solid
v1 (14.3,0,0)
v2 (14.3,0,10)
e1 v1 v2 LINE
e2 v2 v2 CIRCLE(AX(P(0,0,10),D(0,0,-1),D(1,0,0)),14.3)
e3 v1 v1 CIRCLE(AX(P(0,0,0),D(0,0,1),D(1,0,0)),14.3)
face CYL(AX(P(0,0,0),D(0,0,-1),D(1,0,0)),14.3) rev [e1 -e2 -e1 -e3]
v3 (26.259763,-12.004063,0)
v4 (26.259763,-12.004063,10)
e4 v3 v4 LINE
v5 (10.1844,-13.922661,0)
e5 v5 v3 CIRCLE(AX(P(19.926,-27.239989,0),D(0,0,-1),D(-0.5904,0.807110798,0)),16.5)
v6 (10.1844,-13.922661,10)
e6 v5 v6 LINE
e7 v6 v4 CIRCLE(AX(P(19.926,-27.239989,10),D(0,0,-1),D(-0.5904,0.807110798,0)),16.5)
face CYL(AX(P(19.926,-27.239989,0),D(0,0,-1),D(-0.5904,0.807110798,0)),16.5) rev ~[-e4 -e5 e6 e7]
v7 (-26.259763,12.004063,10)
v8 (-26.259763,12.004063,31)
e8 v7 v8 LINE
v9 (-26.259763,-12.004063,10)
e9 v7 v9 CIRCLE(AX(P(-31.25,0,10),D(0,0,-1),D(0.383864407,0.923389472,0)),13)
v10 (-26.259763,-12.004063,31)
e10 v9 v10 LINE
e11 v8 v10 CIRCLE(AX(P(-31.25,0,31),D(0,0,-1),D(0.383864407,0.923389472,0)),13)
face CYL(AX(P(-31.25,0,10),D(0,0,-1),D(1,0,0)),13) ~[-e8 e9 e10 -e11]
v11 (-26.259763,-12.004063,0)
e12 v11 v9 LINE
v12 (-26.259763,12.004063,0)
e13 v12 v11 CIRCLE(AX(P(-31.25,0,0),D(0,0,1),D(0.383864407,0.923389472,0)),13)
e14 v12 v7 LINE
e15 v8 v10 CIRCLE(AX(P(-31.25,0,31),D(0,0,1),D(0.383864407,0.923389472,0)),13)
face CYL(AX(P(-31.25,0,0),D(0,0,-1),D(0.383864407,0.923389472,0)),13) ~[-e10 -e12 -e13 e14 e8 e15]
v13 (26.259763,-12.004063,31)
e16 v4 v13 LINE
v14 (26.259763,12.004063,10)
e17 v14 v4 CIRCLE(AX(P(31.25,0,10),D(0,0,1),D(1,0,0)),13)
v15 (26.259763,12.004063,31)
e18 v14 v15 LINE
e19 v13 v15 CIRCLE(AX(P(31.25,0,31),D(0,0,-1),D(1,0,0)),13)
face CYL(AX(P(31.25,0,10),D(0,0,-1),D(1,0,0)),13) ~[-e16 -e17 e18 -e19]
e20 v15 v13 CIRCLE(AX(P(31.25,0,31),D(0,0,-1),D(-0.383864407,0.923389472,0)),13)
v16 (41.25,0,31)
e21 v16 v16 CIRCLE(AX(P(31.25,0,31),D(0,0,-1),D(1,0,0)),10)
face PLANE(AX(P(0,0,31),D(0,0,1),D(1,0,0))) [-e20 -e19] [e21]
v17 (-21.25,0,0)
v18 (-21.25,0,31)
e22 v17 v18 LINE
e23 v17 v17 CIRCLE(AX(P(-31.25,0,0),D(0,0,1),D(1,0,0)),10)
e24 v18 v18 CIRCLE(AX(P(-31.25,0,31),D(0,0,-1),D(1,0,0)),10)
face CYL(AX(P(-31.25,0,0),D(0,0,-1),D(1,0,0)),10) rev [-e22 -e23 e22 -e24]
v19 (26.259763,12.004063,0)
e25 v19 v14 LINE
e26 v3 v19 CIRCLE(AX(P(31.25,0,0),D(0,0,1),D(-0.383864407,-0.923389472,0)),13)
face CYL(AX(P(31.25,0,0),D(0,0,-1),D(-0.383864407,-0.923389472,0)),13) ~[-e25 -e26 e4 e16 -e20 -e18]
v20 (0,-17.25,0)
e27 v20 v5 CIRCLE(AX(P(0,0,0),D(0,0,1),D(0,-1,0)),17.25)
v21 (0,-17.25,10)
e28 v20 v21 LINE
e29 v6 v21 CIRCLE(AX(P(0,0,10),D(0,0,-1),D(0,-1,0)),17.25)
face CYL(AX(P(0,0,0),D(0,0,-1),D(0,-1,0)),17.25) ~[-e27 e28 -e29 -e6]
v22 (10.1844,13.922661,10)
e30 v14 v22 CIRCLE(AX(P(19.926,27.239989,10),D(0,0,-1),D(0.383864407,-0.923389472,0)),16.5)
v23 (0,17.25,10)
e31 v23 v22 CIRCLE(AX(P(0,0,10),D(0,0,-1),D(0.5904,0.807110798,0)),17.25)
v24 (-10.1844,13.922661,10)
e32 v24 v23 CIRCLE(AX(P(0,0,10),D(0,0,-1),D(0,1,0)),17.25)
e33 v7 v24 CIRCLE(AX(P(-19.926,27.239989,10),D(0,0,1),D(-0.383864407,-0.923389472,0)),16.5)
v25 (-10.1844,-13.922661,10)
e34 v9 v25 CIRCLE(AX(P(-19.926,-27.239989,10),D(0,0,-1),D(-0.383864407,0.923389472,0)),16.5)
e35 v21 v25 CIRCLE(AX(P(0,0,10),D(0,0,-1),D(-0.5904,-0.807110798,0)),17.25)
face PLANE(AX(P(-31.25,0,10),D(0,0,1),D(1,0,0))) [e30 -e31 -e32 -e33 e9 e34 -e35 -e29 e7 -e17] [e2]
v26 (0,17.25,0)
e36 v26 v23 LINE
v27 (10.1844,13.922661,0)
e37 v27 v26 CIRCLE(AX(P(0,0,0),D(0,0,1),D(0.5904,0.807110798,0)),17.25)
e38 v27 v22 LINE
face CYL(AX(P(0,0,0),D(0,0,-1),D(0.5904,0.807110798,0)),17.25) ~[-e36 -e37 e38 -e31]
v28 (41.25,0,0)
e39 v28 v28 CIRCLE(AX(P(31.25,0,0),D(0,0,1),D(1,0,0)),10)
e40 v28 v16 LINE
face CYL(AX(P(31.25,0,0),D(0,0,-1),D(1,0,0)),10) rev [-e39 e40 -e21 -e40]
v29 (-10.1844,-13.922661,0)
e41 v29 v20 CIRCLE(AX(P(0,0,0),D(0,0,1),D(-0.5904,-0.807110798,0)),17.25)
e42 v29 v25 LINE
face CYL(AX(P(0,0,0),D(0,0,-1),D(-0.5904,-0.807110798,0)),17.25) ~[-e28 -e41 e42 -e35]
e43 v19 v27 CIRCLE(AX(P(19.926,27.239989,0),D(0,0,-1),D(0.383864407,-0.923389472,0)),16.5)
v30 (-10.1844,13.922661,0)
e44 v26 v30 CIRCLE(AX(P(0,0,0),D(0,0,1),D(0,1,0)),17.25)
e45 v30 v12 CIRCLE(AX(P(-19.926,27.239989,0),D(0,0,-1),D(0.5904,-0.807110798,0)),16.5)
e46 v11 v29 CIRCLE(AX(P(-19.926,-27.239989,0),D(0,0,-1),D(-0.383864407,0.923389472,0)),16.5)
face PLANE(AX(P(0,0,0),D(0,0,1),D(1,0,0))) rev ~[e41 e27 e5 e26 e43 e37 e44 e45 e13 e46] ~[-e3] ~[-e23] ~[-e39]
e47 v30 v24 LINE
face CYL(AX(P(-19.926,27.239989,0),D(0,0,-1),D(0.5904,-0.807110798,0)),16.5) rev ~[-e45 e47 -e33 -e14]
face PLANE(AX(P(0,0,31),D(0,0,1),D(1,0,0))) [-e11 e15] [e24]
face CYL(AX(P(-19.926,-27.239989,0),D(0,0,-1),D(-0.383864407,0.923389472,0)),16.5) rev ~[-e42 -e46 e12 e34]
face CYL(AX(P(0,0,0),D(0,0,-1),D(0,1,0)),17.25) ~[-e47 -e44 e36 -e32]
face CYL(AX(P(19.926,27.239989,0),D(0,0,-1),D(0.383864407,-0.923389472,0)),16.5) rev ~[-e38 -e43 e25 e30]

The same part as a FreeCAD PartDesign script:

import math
import FreeCAD as App
import Part
import Sketcher
from FreeCAD import Vector
Q = App.Units.Quantity


def add_polygon(sketch, points):
    """Adds a closed chain of lines whose ends are joined by coincident constraints."""
    first, n = sketch.GeometryCount, len(points)
    for a, b in zip(points, points[1:] + points[:1]):
        sketch.addGeometry(Part.LineSegment(App.Vector(*a, 0), App.Vector(*b, 0)), False)
    for i in range(n):
        sketch.addConstraint(Sketcher.Constraint("Coincident", first + i, 2, first + (i + 1) % n, 1))

doc = App.newDocument("Part")
body = doc.addObject("PartDesign::Body", "Body")

# Sketch on XY plane
sketch1 = body.newObject("Sketcher::SketchObject", "Sketch")
sketch1.AttachmentSupport = (doc.getObject("XY_Plane"), [""])
sketch1.MapMode = "FlatFace"
sketch1.addGeometry([
    Part.ArcOfCircle(Part.Circle(Vector(-20, 27, 0), Vector(0, 0, 1), 16), math.radians(-113), math.radians(-54)),  # 0
    Part.ArcOfCircle(Part.Circle(Vector(-31, 0, 0), Vector(0, 0, 1), 13), math.radians(67), math.radians(293)),  # 1
    Part.ArcOfCircle(Part.Circle(Vector(-20, -27, 0), Vector(0, 0, 1), 16), math.radians(54), math.radians(113)),  # 2
    Part.ArcOfCircle(Part.Circle(Vector(0, 0, 0), Vector(0, 0, 1), 17), math.radians(-126), math.radians(-90)),  # 3
    Part.ArcOfCircle(Part.Circle(Vector(0, 0, 0), Vector(0, 0, 1), 17), math.radians(-90), math.radians(-54)),  # 4
    Part.ArcOfCircle(Part.Circle(Vector(20, -27, 0), Vector(0, 0, 1), 16), math.radians(67), math.radians(126)),  # 5
    Part.ArcOfCircle(Part.Circle(Vector(31, 0, 0), Vector(0, 0, 1), 13), math.radians(-113), math.radians(113)),  # 6
    Part.ArcOfCircle(Part.Circle(Vector(20, 27, 0), Vector(0, 0, 1), 16), math.radians(-126), math.radians(-67)),  # 7
    Part.ArcOfCircle(Part.Circle(Vector(0, 0, 0), Vector(0, 0, 1), 17), math.radians(54), math.radians(90)),  # 8
    Part.ArcOfCircle(Part.Circle(Vector(0, 0, 0), Vector(0, 0, 1), 17), math.radians(90), math.radians(126)),  # 9
], False)
sketch1.addConstraint([
    Sketcher.Constraint("Tangent", 0, 1, 1, 1),
    Sketcher.Constraint("Tangent", 1, 2, 2, 2),
    Sketcher.Constraint("Tangent", 2, 1, 3, 1),
    Sketcher.Constraint("Tangent", 3, 2, 4, 1),
    Sketcher.Constraint("Tangent", 4, 2, 5, 2),
    Sketcher.Constraint("Tangent", 5, 1, 6, 1),
    Sketcher.Constraint("Tangent", 6, 2, 7, 2),
    Sketcher.Constraint("Tangent", 7, 1, 8, 1),
    Sketcher.Constraint("Tangent", 8, 2, 9, 1),
    Sketcher.Constraint("Tangent", 9, 2, 0, 2),
    Sketcher.Constraint("Coincident", 3, 3, -1, 1),
    Sketcher.Constraint("Coincident", 8, 3, -1, 1),
    Sketcher.Constraint("Equal", 0, 2),
    Sketcher.Constraint("Equal", 3, 4),
    Sketcher.Constraint("Equal", 2, 5),
    Sketcher.Constraint("Equal", 1, 6),
    Sketcher.Constraint("Equal", 5, 7),
    Sketcher.Constraint("Equal", 4, 8),
    Sketcher.Constraint("Equal", 8, 9),
    Sketcher.Constraint("Symmetric", 1, 3, 6, 3, -1, 1),
    Sketcher.Constraint("PointOnObject", 1, 3, -1),
    Sketcher.Constraint("PointOnObject", 3, 2, -2),
    Sketcher.Constraint("PointOnObject", 8, 2, -2),
    Sketcher.Constraint("Radius", 1, Q("13 mm")),
    Sketcher.Constraint("Radius", 0, Q("16.5 mm")),
    Sketcher.Constraint("Radius", 3, Q("17.25 mm")),
    Sketcher.Constraint("DistanceX", 1, 3, -1, 1, Q("31.25 mm")),
])
pad1 = body.newObject("PartDesign::Pad", "Pad")
pad1.Profile = sketch1
pad1.Length = 31

# Sketch on XY plane
sketch2 = body.newObject("Sketcher::SketchObject", "Sketch001")
sketch2.AttachmentSupport = (doc.getObject("XY_Plane"), [""])
sketch2.MapMode = "FlatFace"
sketch2.addGeometry([
    Part.Circle(Vector(0, 0, 0), Vector(0, 0, 1), 14),
    Part.Circle(Vector(-31, 0, 0), Vector(0, 0, 1), 10),
    Part.Circle(Vector(31, 0, 0), Vector(0, 0, 1), 10),
], False)
sketch2.addConstraint([
    Sketcher.Constraint("Coincident", 0, 3, -1, 1),
    Sketcher.Constraint("Equal", 1, 2),
    Sketcher.Constraint("Symmetric", 1, 3, 2, 3, -1, 1),
    Sketcher.Constraint("PointOnObject", 1, 3, -1),
    Sketcher.Constraint("Diameter", 1, Q("20 mm")),
    Sketcher.Constraint("Diameter", 0, Q("28.6 mm")),
    Sketcher.Constraint("DistanceX", 1, 3, 2, 3, Q("62.5 mm")),
])
pocket1 = body.newObject("PartDesign::Pocket", "Pocket")
pocket1.Profile = sketch2
pocket1.Type = "ThroughAll"
pocket1.Reversed = True

# Sketch on XY plane
sketch3 = body.newObject("Sketcher::SketchObject", "Sketch002")
sketch3.AttachmentSupport = (doc.getObject("XY_Plane"), [""])
sketch3.MapMode = "FlatFace"
sketch3.AttachmentOffset = App.Placement(Vector(0, 0, 31), App.Rotation())
add_polygon(sketch3, [(-16, 40), (-16, -40), (16, -40), (16, 40)])  # lines 0-3
sketch3.addConstraint([
    Sketcher.Constraint("Vertical", 0),
    Sketcher.Constraint("Horizontal", 1),
    Sketcher.Constraint("Vertical", 2),
    Sketcher.Constraint("Horizontal", 3),
    Sketcher.Constraint("Symmetric", 0, 2, 2, 2, -1, 1),
    Sketcher.Constraint("DistanceX", 1, 1, 1, 2, Q("33 mm")),
    Sketcher.Constraint("DistanceY", 0, 2, 0, 1, Q("80 mm")),
])
pocket2 = body.newObject("PartDesign::Pocket", "Pocket001")
pocket2.Profile = sketch3
pocket2.Length = 21

# Sketch on XY plane
sketch4 = body.newObject("Sketcher::SketchObject", "Sketch003")
sketch4.AttachmentSupport = (doc.getObject("XY_Plane"), [""])
sketch4.MapMode = "FlatFace"
sketch4.AttachmentOffset = App.Placement(Vector(0, 0, 10), App.Rotation())
sketch4.addGeometry([
    Part.Circle(Vector(-31, 0, 0), Vector(0, 0, 1), 22),
    Part.Circle(Vector(-31, 0, 0), Vector(0, 0, 1), 13),
    Part.Circle(Vector(31, 0, 0), Vector(0, 0, 1), 22),
    Part.Circle(Vector(31, 0, 0), Vector(0, 0, 1), 13),
], False)
sketch4.addConstraint([
    Sketcher.Constraint("Coincident", 1, 3, 0, 3),
    Sketcher.Constraint("Coincident", 3, 3, 2, 3),
    Sketcher.Constraint("Equal", 0, 2),
    Sketcher.Constraint("Equal", 1, 3),
    Sketcher.Constraint("Symmetric", 0, 3, 2, 3, -1, 1),
    Sketcher.Constraint("PointOnObject", 0, 3, -1),
    Sketcher.Constraint("Diameter", 0, Q("45 mm")),
    Sketcher.Constraint("Diameter", 1, Q("26 mm")),
    Sketcher.Constraint("DistanceX", 0, 3, 2, 3, Q("62.5 mm")),
])
pocket3 = body.newObject("PartDesign::Pocket", "Pocket002")
pocket3.Profile = sketch4
pocket3.Length = 21.001
pocket3.Reversed = True

doc.recompute()
